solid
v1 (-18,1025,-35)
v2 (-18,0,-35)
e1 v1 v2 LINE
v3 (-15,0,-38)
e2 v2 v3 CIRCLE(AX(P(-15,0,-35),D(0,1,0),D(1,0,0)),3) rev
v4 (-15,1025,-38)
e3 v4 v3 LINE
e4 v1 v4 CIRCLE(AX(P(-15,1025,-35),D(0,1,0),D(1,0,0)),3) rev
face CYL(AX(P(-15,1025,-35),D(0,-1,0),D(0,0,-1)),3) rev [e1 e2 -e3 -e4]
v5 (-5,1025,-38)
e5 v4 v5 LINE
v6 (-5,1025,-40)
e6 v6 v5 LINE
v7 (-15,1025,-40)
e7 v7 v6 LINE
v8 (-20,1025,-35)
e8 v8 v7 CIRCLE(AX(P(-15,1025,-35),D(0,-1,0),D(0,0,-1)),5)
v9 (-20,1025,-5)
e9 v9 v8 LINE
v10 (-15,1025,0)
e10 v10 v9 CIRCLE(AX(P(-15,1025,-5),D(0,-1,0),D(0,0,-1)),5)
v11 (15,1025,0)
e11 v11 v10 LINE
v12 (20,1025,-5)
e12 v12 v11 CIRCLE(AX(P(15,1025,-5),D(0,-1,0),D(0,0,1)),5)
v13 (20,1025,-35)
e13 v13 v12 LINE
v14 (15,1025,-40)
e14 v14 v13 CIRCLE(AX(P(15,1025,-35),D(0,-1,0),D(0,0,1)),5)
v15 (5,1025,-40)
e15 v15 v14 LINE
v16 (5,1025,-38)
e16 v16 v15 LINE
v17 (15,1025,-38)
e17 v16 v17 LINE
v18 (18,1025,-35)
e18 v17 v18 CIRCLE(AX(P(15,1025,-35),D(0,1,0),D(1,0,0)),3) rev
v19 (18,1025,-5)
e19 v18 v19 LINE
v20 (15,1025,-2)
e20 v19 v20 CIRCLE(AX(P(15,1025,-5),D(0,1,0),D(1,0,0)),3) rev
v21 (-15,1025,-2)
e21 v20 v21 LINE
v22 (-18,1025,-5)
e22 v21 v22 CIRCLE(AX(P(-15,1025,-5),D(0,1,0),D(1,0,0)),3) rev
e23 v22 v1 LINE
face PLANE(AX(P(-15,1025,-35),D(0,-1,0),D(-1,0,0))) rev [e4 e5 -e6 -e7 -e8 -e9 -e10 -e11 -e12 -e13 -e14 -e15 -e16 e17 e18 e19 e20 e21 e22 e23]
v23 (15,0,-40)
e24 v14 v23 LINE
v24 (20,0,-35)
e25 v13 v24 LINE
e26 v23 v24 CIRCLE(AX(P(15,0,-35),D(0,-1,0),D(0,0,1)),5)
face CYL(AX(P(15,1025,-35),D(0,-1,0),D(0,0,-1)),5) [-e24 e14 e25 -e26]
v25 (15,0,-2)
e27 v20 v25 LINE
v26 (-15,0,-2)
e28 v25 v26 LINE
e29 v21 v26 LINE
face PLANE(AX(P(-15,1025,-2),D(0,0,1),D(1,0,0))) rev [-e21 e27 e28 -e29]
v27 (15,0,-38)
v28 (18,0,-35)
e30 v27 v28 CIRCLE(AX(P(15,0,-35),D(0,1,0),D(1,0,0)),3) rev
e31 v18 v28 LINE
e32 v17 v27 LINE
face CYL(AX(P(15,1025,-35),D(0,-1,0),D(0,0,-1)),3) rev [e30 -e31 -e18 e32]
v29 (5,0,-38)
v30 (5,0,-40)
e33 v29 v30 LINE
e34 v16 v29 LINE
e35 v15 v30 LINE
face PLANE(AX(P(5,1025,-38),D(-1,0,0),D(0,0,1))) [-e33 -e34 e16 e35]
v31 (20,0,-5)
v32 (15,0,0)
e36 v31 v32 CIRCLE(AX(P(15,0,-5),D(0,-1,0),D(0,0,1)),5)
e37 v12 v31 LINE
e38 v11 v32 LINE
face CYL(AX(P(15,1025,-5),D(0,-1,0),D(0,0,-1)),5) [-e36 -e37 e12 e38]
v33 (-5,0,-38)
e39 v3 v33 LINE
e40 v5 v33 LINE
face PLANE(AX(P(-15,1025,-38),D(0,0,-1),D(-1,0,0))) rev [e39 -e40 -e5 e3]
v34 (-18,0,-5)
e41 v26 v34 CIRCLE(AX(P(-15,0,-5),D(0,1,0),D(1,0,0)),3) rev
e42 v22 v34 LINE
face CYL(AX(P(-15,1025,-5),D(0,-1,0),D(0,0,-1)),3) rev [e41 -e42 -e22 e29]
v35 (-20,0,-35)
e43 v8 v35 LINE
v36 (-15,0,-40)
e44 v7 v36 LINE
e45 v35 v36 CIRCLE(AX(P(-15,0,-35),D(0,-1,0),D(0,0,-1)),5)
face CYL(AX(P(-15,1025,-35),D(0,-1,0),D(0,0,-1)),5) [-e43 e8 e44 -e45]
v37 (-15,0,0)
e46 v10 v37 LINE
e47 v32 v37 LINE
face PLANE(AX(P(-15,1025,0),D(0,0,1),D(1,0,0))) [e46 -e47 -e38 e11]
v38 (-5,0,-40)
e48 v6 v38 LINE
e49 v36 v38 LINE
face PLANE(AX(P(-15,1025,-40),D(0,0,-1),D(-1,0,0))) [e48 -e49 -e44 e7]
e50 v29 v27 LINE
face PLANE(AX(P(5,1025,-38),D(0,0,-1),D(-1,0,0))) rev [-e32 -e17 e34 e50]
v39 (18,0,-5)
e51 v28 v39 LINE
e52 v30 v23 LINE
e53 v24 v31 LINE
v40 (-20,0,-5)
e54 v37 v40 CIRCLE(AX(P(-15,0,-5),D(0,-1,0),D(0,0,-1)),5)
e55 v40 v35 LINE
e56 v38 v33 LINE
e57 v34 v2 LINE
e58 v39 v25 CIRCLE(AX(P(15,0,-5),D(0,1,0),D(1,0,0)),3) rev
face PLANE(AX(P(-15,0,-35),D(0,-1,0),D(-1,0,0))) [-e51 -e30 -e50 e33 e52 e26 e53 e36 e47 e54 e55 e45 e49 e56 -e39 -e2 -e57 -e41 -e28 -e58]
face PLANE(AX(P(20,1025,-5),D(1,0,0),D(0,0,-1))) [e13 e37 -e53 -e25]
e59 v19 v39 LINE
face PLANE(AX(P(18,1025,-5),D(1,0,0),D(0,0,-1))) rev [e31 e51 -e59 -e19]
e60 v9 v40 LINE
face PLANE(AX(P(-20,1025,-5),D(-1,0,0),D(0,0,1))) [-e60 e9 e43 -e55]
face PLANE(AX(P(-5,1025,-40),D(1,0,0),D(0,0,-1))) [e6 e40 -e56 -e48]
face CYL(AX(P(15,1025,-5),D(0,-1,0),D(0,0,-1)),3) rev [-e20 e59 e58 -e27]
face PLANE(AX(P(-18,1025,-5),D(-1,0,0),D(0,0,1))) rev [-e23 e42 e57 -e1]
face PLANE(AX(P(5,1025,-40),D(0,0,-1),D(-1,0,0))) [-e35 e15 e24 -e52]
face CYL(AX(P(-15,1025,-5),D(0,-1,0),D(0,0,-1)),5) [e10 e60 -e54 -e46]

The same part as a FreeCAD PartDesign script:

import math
import FreeCAD as App
import Part
import Sketcher

V = App.Vector

doc = App.newDocument("Part")
params = doc.addObject("Spreadsheet::Sheet", "Params")
for row, (alias, value) in enumerate([
    ("sketch1_radius", "5 mm"),
    ("sketch1_radius2", "3 mm"),
    ("sketch1_width", "10 mm"),
    ("sketch1_width2", "30 mm"),
    ("pad1_length", "1025 mm"),
], start=1):
    params.set(f"A{row}", alias)
    params.set(f"B{row}", "=" + value)
    params.setAlias(f"B{row}", alias)

body = doc.addObject("PartDesign::Body", "Body")

sketch1 = body.newObject("Sketcher::SketchObject", "Sketch")
sketch1.AttachmentSupport = (doc.getObject("XZ_Plane"), [""])
sketch1.MapMode = "FlatFace"
sketch1.addGeometry([
    Part.LineSegment(V(-5, -40, 0), V(-15, -40, 0)),
    Part.ArcOfCircle(Part.Circle(V(-15, -35, 0), V(0, 0, 1), 5), math.radians(180), math.radians(270)),
    Part.LineSegment(V(-20, -35, 0), V(-20, -5, 0)),
    Part.ArcOfCircle(Part.Circle(V(-15, -5, 0), V(0, 0, 1), 5), math.radians(90), math.radians(180)),
    Part.LineSegment(V(-15, 0, 0), V(15, 0, 0)),
    Part.ArcOfCircle(Part.Circle(V(15, -5, 0), V(0, 0, 1), 5), math.radians(0), math.radians(90)),
    Part.LineSegment(V(20, -5, 0), V(20, -35, 0)),
    Part.ArcOfCircle(Part.Circle(V(15, -35, 0), V(0, 0, 1), 5), math.radians(-90), math.radians(0)),
    Part.LineSegment(V(15, -40, 0), V(5, -40, 0)),
    Part.LineSegment(V(5, -40, 0), V(5, -38, 0)),
    Part.LineSegment(V(5, -38, 0), V(15, -38, 0)),
    Part.ArcOfCircle(Part.Circle(V(15, -35, 0), V(0, 0, 1), 3), math.radians(-90), math.radians(0)),
    Part.LineSegment(V(18, -35, 0), V(18, -5, 0)),
    Part.ArcOfCircle(Part.Circle(V(15, -5, 0), V(0, 0, 1), 3), math.radians(0), math.radians(90)),
    Part.LineSegment(V(15, -2, 0), V(-15, -2, 0)),
    Part.ArcOfCircle(Part.Circle(V(-15, -5, 0), V(0, 0, 1), 3), math.radians(90), math.radians(180)),
    Part.LineSegment(V(-18, -5, 0), V(-18, -35, 0)),
    Part.ArcOfCircle(Part.Circle(V(-15, -35, 0), V(0, 0, 1), 3), math.radians(180), math.radians(270)),
    Part.LineSegment(V(-15, -38, 0), V(-5, -38, 0)),
    Part.LineSegment(V(-5, -38, 0), V(-5, -40, 0)),
], False)
sketch1.addConstraint([
    Sketcher.Constraint("Tangent", 0, 2, 1, 2),
    Sketcher.Constraint("Tangent", 1, 1, 2, 1),
    Sketcher.Constraint("Tangent", 2, 2, 3, 2),
    Sketcher.Constraint("Tangent", 3, 1, 4, 1),
    Sketcher.Constraint("Tangent", 4, 2, 5, 2),
    Sketcher.Constraint("Tangent", 5, 1, 6, 1),
    Sketcher.Constraint("Tangent", 6, 2, 7, 2),
    Sketcher.Constraint("Tangent", 7, 1, 8, 1),
    Sketcher.Constraint("Coincident", 8, 2, 9, 1),
    Sketcher.Constraint("Coincident", 9, 2, 10, 1),
    Sketcher.Constraint("Tangent", 10, 2, 11, 1),
    Sketcher.Constraint("Tangent", 11, 2, 12, 1),
    Sketcher.Constraint("Tangent", 12, 2, 13, 1),
    Sketcher.Constraint("Tangent", 13, 2, 14, 1),
    Sketcher.Constraint("Tangent", 14, 2, 15, 1),
    Sketcher.Constraint("Tangent", 15, 2, 16, 1),
    Sketcher.Constraint("Tangent", 16, 2, 17, 1),
    Sketcher.Constraint("Tangent", 17, 2, 18, 1),
    Sketcher.Constraint("Coincident", 18, 2, 19, 1),
    Sketcher.Constraint("Coincident", 19, 2, 0, 1),
    Sketcher.Constraint("Horizontal", 0),
    Sketcher.Constraint("Vertical", 2),
    Sketcher.Constraint("Horizontal", 4),
    Sketcher.Constraint("Vertical", 6),
    Sketcher.Constraint("Horizontal", 8),
    Sketcher.Constraint("Vertical", 9),
    Sketcher.Constraint("Horizontal", 10),
    Sketcher.Constraint("Vertical", 12),
    Sketcher.Constraint("Horizontal", 14),
    Sketcher.Constraint("Vertical", 16),
    Sketcher.Constraint("Horizontal", 18),
    Sketcher.Constraint("Vertical", 19),
    Sketcher.Constraint("Coincident", 11, 3, 7, 3),
    Sketcher.Constraint("Coincident", 13, 3, 5, 3),
    Sketcher.Constraint("Coincident", 15, 3, 3, 3),
    Sketcher.Constraint("Coincident", 17, 3, 1, 3),
    Sketcher.Constraint("Equal", 1, 3),
    Sketcher.Constraint("Equal", 3, 5),
    Sketcher.Constraint("Equal", 5, 7),
    Sketcher.Constraint("Symmetric", 3, 1, 4, 2, -1, 1),
    Sketcher.Constraint("Symmetric", 9, 2, 18, 2, -2),
    Sketcher.Constraint("Equal", 14, 2),
    Sketcher.Constraint("Radius", 1, 5.0),
    Sketcher.Constraint("Radius", 11, 3.0),
    Sketcher.Constraint("DistanceX", 0, 2, 0, 1, 10.0),
    Sketcher.Constraint("DistanceX", 4, 1, 4, 2, 30.0),
])
sketch1.setExpression("Constraints[42]", "Params.sketch1_radius")
sketch1.setExpression("Constraints[43]", "Params.sketch1_radius2")
sketch1.setExpression("Constraints[44]", "Params.sketch1_width")
sketch1.setExpression("Constraints[45]", "Params.sketch1_width2")
pad1 = body.newObject("PartDesign::Pad", "Pad")
pad1.Profile = sketch1
pad1.setExpression("Length", "Params.pad1_length")
pad1.Reversed = True

doc.recompute()
